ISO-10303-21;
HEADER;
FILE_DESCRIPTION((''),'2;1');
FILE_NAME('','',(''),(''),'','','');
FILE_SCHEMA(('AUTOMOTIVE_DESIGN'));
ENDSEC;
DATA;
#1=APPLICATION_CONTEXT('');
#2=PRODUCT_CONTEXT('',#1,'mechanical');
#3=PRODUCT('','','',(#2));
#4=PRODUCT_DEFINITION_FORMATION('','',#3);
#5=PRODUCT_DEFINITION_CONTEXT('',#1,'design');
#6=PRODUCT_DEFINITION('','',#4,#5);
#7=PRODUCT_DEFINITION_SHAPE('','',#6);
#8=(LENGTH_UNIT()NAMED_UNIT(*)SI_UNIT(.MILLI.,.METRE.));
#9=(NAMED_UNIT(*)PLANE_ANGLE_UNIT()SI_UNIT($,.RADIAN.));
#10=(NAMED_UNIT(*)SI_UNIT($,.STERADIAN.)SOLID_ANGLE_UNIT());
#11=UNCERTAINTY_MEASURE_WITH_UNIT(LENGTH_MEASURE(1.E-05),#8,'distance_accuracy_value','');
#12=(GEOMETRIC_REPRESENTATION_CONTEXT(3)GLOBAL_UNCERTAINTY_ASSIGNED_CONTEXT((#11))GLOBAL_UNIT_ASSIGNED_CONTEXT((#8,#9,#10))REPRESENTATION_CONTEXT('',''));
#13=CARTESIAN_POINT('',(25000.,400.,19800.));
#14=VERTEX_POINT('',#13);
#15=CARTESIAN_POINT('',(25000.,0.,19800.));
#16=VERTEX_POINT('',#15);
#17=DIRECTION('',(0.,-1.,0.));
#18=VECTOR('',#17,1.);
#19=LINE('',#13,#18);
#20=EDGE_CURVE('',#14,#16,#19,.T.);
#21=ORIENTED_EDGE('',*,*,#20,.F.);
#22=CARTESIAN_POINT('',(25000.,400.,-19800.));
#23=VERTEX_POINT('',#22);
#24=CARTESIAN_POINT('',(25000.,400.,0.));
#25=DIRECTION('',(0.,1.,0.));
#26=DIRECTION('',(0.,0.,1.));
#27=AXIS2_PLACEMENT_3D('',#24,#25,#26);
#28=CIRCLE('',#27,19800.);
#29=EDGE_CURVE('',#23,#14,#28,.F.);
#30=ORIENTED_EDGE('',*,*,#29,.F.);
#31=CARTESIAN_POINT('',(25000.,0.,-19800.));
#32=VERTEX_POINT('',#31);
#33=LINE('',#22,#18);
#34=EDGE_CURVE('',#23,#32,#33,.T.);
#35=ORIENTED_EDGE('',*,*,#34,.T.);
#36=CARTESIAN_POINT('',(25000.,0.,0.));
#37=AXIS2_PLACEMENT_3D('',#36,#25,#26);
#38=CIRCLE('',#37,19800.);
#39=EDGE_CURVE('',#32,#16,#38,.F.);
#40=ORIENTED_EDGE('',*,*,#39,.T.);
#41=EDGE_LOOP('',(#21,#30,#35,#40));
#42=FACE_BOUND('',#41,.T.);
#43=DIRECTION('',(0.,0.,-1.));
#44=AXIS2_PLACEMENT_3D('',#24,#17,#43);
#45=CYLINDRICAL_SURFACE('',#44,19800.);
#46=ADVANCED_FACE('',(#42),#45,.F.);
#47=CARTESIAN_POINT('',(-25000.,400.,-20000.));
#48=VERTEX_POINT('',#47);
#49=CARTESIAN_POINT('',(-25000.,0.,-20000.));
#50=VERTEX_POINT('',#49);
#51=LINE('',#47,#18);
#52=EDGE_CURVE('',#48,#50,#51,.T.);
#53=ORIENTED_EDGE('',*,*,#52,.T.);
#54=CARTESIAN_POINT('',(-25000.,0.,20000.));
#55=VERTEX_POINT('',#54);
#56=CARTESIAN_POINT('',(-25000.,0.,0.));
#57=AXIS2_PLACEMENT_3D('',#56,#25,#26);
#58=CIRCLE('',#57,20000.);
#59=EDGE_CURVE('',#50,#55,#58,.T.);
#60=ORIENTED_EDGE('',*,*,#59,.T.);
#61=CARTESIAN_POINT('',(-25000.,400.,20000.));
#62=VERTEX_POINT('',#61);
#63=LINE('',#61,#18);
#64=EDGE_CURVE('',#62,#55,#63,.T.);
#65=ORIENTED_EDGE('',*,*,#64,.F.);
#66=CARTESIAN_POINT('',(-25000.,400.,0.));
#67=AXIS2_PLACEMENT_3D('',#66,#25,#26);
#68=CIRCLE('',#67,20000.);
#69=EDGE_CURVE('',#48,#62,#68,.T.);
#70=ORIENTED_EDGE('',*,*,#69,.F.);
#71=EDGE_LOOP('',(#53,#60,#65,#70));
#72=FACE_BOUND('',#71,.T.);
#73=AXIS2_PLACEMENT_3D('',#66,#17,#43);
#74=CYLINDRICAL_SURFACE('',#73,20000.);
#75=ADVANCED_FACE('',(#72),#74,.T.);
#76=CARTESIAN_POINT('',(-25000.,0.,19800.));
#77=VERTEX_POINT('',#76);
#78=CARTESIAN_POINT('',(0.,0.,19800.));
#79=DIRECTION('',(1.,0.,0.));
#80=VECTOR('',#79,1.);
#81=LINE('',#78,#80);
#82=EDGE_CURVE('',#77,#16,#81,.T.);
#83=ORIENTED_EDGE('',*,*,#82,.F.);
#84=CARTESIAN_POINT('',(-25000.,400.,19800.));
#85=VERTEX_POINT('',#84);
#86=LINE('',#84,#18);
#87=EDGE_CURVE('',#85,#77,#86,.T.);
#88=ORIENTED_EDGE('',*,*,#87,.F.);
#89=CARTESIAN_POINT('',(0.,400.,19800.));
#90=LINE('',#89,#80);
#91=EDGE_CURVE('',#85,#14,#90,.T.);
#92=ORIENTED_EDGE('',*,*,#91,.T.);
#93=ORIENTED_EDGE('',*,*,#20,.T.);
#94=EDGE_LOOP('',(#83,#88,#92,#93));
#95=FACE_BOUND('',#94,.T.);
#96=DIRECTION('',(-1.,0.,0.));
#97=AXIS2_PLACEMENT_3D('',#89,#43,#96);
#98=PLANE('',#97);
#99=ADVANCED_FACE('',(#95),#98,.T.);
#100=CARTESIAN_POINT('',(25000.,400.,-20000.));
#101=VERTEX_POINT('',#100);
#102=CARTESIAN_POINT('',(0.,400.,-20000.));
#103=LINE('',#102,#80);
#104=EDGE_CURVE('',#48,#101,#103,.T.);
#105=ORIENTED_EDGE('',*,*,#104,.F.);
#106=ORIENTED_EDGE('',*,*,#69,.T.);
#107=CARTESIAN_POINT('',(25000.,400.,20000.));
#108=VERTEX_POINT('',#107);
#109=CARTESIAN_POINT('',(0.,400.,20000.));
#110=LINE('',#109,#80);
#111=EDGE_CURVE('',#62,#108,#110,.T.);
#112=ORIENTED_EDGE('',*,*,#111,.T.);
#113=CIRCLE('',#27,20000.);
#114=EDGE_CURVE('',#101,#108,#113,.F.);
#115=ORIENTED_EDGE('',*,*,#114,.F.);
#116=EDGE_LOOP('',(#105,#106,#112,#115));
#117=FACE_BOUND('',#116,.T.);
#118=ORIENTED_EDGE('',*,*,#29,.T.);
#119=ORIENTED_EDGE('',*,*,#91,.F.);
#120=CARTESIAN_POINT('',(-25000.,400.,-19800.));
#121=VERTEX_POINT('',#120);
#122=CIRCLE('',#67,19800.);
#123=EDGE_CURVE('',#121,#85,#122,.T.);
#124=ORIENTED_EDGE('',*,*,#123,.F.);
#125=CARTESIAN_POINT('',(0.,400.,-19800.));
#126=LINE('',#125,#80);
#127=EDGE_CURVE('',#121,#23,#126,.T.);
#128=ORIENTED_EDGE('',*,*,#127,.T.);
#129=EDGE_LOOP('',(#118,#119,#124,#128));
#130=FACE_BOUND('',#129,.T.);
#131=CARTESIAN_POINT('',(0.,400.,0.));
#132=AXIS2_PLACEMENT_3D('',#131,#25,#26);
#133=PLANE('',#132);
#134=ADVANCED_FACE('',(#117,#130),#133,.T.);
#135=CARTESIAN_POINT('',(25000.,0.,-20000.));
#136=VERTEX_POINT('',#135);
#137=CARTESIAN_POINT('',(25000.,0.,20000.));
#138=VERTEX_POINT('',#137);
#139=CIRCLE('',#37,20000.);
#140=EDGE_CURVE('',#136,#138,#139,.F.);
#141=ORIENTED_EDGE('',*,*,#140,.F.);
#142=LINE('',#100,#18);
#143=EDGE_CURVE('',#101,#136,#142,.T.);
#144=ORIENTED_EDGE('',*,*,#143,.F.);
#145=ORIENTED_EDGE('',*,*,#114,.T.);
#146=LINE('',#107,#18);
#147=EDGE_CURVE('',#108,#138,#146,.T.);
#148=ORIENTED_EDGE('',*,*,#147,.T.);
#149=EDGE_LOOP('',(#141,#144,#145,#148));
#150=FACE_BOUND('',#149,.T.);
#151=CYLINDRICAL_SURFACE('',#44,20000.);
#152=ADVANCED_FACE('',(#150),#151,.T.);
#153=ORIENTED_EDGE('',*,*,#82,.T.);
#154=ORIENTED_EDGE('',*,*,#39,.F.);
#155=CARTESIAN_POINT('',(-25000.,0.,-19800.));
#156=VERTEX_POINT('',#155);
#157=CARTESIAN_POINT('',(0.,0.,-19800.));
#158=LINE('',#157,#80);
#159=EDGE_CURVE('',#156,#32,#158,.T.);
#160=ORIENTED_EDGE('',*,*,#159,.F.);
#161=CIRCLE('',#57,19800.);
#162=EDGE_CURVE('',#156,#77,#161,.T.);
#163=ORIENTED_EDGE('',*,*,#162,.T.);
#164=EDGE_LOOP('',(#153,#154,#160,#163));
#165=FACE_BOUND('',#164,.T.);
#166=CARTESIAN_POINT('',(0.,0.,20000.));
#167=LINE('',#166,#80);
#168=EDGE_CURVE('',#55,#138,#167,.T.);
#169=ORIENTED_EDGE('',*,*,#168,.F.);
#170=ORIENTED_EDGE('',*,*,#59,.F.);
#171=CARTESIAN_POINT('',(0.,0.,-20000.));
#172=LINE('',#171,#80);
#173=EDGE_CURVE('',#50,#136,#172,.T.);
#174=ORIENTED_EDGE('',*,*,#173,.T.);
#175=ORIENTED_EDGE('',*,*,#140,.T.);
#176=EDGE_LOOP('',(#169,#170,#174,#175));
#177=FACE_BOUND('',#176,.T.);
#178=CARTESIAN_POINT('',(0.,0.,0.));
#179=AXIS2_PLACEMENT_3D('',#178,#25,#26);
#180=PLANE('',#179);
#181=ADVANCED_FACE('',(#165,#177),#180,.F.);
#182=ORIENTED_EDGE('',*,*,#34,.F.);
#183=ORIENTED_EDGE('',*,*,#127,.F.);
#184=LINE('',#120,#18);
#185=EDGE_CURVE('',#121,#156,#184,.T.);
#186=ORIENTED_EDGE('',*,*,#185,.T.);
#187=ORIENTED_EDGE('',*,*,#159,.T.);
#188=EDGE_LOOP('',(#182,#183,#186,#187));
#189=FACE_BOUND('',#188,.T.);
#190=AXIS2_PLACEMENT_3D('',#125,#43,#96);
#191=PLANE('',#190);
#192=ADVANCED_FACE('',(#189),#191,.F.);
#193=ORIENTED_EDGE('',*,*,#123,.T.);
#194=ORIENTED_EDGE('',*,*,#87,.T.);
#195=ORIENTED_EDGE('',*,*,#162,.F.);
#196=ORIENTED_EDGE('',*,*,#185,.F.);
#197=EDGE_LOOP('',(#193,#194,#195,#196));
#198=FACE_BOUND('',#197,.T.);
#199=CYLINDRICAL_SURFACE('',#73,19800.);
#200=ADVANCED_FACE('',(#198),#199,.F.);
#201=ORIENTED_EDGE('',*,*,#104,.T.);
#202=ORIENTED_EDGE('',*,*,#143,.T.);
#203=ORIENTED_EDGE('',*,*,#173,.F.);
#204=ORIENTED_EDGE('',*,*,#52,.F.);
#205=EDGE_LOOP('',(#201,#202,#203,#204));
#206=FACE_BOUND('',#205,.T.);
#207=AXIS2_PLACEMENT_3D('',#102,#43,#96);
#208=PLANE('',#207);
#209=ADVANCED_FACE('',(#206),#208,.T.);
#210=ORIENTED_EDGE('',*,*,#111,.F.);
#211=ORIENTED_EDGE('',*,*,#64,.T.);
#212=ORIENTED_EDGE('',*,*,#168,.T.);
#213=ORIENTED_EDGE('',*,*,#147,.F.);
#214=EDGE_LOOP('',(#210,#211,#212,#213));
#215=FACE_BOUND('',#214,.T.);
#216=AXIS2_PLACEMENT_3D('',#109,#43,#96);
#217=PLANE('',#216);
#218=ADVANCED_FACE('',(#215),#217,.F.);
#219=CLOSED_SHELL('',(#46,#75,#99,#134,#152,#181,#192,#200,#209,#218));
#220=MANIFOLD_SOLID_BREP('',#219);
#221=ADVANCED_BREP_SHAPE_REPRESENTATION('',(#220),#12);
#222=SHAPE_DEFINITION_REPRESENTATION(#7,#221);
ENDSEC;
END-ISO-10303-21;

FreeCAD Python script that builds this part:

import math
import FreeCAD as App
import Part
import Sketcher

V = App.Vector

doc = App.newDocument("Part")
body = doc.addObject("PartDesign::Body", "Body")

# Sketch on XZ plane
sketch1 = body.newObject("Sketcher::SketchObject", "Sketch")
sketch1.AttachmentSupport = (doc.getObject("XZ_Plane"), [""])
sketch1.MapMode = "FlatFace"
sketch1.addGeometry([
    Part.ArcOfCircle(Part.Circle(V(25000, 0, 0), V(0, 0, 1), 20000), math.radians(-90), math.radians(90)),  # 0
    Part.LineSegment(V(25000, -20000, 0), V(-25000, -20000, 0)),  # 1
    Part.ArcOfCircle(Part.Circle(V(-25000, 0, 0), V(0, 0, 1), 20000), math.radians(90), math.radians(270)),  # 2
    Part.LineSegment(V(-25000, 20000, 0), V(25000, 20000, 0)),  # 3
    Part.LineSegment(V(-25000, -19800, 0), V(25000, -19800, 0)),  # 4
    Part.ArcOfCircle(Part.Circle(V(25000, 0, 0), V(0, 0, 1), 19800), math.radians(-90), math.radians(90)),  # 5
    Part.LineSegment(V(25000, 19800, 0), V(-25000, 19800, 0)),  # 6
    Part.ArcOfCircle(Part.Circle(V(-25000, 0, 0), V(0, 0, 1), 19800), math.radians(90), math.radians(270)),  # 7
], False)
sketch1.addConstraint([
    Sketcher.Constraint("Coincident", 0, 1, 1, 1),
    Sketcher.Constraint("Coincident", 1, 2, 2, 2),
    Sketcher.Constraint("Coincident", 2, 1, 3, 1),
    Sketcher.Constraint("Coincident", 3, 2, 0, 2),
    Sketcher.Constraint("Coincident", 4, 2, 5, 1),
    Sketcher.Constraint("Coincident", 5, 2, 6, 1),
    Sketcher.Constraint("Coincident", 6, 2, 7, 1),
    Sketcher.Constraint("Coincident", 7, 2, 4, 1),
    Sketcher.Constraint("Horizontal", 1),
    Sketcher.Constraint("Horizontal", 3),
    Sketcher.Constraint("Horizontal", 4),
    Sketcher.Constraint("Horizontal", 6),
    Sketcher.Constraint("Coincident", 5, 3, 0, 3),
    Sketcher.Constraint("Symmetric", 0, 3, 2, 3, -1, 1),
    Sketcher.Constraint("Vertical", 7, 3, 1, 2),
    Sketcher.Constraint("Vertical", 3, 2, 4, 2),
    Sketcher.Constraint("Equal", 1, 3),
    Sketcher.Constraint("Equal", 3, 4),
    Sketcher.Constraint("Equal", 4, 6),
    Sketcher.Constraint("Radius", 0, 20000.0),
    Sketcher.Constraint("Radius", 5, 19800.0),
    Sketcher.Constraint("DistanceX", 1, 2, 1, 1, 50000.0),
    Sketcher.Constraint("DistanceX", -1, 1, 0, 3, 25000.0),
    Sketcher.Constraint("DistanceX", 7, 3, -1, 1, 25000.0),
    Sketcher.Constraint("DistanceX", -1, 1, 3, 2, 25000.0),
    Sketcher.Constraint("DistanceX", 6, 2, -1, 1, 25000.0),
])
pad1 = body.newObject("PartDesign::Pad", "Pad")
pad1.Profile = sketch1
pad1.Length = 400
pad1.Reversed = True

doc.recompute()
